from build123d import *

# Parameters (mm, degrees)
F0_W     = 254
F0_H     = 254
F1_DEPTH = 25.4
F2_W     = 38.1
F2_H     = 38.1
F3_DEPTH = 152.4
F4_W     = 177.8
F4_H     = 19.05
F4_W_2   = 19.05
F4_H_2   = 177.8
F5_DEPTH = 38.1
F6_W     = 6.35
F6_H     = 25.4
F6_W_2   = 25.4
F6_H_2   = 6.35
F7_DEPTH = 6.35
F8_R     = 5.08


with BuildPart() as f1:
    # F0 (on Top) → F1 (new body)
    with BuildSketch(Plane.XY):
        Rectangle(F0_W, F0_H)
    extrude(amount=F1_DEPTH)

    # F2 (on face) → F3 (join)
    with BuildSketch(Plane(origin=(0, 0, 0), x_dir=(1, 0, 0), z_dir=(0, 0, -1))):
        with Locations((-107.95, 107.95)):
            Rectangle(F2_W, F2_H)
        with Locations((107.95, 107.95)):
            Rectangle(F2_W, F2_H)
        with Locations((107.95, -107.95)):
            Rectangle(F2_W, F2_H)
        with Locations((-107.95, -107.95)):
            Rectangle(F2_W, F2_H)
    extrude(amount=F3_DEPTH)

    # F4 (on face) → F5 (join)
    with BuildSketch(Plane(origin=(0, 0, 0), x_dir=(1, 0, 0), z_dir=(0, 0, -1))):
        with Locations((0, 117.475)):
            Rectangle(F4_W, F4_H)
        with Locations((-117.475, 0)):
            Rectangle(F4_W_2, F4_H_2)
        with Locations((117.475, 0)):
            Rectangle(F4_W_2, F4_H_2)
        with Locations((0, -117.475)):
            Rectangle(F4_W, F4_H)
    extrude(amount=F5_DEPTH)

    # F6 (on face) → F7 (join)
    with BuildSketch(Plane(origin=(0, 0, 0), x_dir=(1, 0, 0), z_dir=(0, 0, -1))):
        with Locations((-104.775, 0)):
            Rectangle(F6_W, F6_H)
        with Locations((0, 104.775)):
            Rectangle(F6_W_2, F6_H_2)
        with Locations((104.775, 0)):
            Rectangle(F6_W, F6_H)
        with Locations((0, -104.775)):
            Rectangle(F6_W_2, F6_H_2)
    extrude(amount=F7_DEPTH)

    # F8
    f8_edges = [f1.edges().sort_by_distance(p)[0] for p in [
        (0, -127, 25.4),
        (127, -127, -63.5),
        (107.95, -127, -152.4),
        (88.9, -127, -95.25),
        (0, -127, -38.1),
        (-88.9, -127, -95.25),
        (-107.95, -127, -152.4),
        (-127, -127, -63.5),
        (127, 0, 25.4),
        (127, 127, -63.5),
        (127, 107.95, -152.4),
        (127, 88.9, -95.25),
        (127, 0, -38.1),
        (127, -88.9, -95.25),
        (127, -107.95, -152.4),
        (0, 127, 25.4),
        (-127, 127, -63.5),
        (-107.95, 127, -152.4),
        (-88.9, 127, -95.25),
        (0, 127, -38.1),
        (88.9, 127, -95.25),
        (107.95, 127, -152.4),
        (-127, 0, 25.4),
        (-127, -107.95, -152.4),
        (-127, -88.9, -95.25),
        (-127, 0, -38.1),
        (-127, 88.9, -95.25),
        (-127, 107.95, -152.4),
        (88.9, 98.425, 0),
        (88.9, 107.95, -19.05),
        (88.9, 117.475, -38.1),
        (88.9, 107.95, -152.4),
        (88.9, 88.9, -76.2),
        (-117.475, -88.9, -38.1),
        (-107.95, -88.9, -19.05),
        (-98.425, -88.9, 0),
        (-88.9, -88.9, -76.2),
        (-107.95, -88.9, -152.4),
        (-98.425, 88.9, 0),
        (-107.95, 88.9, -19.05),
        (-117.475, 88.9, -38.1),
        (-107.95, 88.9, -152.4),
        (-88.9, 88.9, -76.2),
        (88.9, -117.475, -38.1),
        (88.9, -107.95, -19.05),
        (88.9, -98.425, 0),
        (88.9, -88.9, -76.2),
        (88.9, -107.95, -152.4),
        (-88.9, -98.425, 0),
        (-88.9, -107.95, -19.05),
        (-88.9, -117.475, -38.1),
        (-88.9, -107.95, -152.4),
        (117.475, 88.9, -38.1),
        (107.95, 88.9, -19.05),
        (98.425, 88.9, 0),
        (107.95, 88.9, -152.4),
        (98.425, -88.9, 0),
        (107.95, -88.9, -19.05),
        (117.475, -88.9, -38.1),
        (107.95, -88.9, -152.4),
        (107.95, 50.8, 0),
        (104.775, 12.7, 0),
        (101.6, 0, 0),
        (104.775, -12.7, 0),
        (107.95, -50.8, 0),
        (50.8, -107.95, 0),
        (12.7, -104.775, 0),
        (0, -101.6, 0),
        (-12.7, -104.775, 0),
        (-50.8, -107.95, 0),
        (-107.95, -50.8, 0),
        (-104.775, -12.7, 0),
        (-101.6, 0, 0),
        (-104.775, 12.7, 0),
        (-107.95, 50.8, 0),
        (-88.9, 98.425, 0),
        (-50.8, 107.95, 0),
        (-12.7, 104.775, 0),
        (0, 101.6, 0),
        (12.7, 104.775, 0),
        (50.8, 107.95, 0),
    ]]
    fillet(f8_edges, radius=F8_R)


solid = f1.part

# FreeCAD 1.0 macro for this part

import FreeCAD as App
import Part
import Sketcher
Q = App.Units.Quantity


def edges_at(feature, points):
    """Names of the edges that pass closest to the given points."""
    edges = feature.Shape.Edges
    near = lambda p: min(range(len(edges)), key=lambda i: edges[i].distToShape(Part.Vertex(*p))[0])
    return sorted({f"Edge{near(p) + 1}" for p in points})


def add_polygon(sketch, points):
    """Adds a closed chain of lines whose ends are joined by coincident constraints."""
    first, n = sketch.GeometryCount, len(points)
    for a, b in zip(points, points[1:] + points[:1]):
        sketch.addGeometry(Part.LineSegment(App.Vector(*a, 0), App.Vector(*b, 0)), False)
    for i in range(n):
        sketch.addConstraint(Sketcher.Constraint("Coincident", first + i, 2, first + (i + 1) % n, 1))

doc = App.newDocument("Part")
body = doc.addObject("PartDesign::Body", "Body")

# Sketch on XY plane
sketch1 = body.newObject("Sketcher::SketchObject", "Sketch")
sketch1.AttachmentSupport = (doc.getObject("XY_Plane"), [""])
sketch1.MapMode = "FlatFace"
add_polygon(sketch1, [(-127, 127), (-127, -127), (127, -127), (127, 127)])  # lines 0-3
sketch1.addConstraint(Sketcher.Constraint("Vertical", 0))
sketch1.addConstraint(Sketcher.Constraint("Horizontal", 1))
sketch1.addConstraint(Sketcher.Constraint("Vertical", 2))
sketch1.addConstraint(Sketcher.Constraint("Horizontal", 3))
sketch1.addConstraint(Sketcher.Constraint("Symmetric", 0, 2, 2, 2, -1, 1))
sketch1.addConstraint(Sketcher.Constraint("Equal", 3, 0))
sketch1.addConstraint(Sketcher.Constraint("DistanceX", 1, 1, 1, 2, Q("10 in")))
pad1 = body.newObject("PartDesign::Pad", "Pad")
pad1.Profile = sketch1
pad1.Length = Q("1 in")

# Sketch on XY plane
sketch2 = body.newObject("Sketcher::SketchObject", "Sketch001")
sketch2.AttachmentSupport = (doc.getObject("XY_Plane"), [""])
sketch2.MapMode = "FlatFace"
add_polygon(sketch2, [(-127, -127), (-127, -88.9), (-88.9, -88.9), (-88.9, -127)])  # lines 0-3
add_polygon(sketch2, [(88.9, -127), (88.9, -88.9), (127, -88.9), (127, -127)])  # lines 4-7
add_polygon(sketch2, [(88.9, 88.9), (88.9, 127), (127, 127), (127, 88.9)])  # lines 8-11
add_polygon(sketch2, [(-127, 88.9), (-127, 127), (-88.9, 127), (-88.9, 88.9)])  # lines 12-15
sketch2.addConstraint(Sketcher.Constraint("Vertical", 0))
sketch2.addConstraint(Sketcher.Constraint("Horizontal", 1))
sketch2.addConstraint(Sketcher.Constraint("Vertical", 2))
sketch2.addConstraint(Sketcher.Constraint("Horizontal", 3))
sketch2.addConstraint(Sketcher.Constraint("Vertical", 4))
sketch2.addConstraint(Sketcher.Constraint("Horizontal", 5))
sketch2.addConstraint(Sketcher.Constraint("Vertical", 6))
sketch2.addConstraint(Sketcher.Constraint("Horizontal", 7))
sketch2.addConstraint(Sketcher.Constraint("Vertical", 8))
sketch2.addConstraint(Sketcher.Constraint("Horizontal", 9))
sketch2.addConstraint(Sketcher.Constraint("Vertical", 10))
sketch2.addConstraint(Sketcher.Constraint("Horizontal", 11))
sketch2.addConstraint(Sketcher.Constraint("Vertical", 12))
sketch2.addConstraint(Sketcher.Constraint("Horizontal", 13))
sketch2.addConstraint(Sketcher.Constraint("Vertical", 14))
sketch2.addConstraint(Sketcher.Constraint("Horizontal", 15))
sketch2.addConstraint(Sketcher.Constraint("Symmetric", 2, 2, 8, 2, -1, 1))
sketch2.addConstraint(Sketcher.Constraint("Symmetric", 0, 2, 10, 2, -1, 1))
sketch2.addConstraint(Sketcher.Constraint("Symmetric", 6, 2, 12, 2, -1, 1))
sketch2.addConstraint(Sketcher.Constraint("Symmetric", 4, 2, 14, 2, -1, 1))
sketch2.addConstraint(Sketcher.Constraint("Symmetric", 1, 2, 4, 2, -2))
sketch2.addConstraint(Sketcher.Constraint("Symmetric", 3, 2, 6, 2, -2))
sketch2.addConstraint(Sketcher.Constraint("Equal", 15, 0))
sketch2.addConstraint(Sketcher.Constraint("DistanceX", 1, 1, 1, 2, Q("1.5 in")))
sketch2.addConstraint(Sketcher.Constraint("DistanceX", 0, 2, -1, 1, Q("5 in")))
sketch2.addConstraint(Sketcher.Constraint("DistanceY", 2, 2, -1, 1, Q("5 in")))
pad2 = body.newObject("PartDesign::Pad", "Pad001")
pad2.Profile = sketch2
pad2.Length = Q("6 in")
pad2.Reversed = True

# Sketch on XY plane
sketch3 = body.newObject("Sketcher::SketchObject", "Sketch002")
sketch3.AttachmentSupport = (doc.getObject("XY_Plane"), [""])
sketch3.MapMode = "FlatFace"
add_polygon(sketch3, [(-88.9, -127), (-88.9, -107.95), (88.9, -107.95), (88.9, -127)])  # lines 0-3
add_polygon(sketch3, [(-127, -88.9), (-127, 88.9), (-107.95, 88.9), (-107.95, -88.9)])  # lines 4-7
add_polygon(sketch3, [(107.95, -88.9), (107.95, 88.9), (127, 88.9), (127, -88.9)])  # lines 8-11
add_polygon(sketch3, [(-88.9, 107.95), (-88.9, 127), (88.9, 127), (88.9, 107.95)])  # lines 12-15
sketch3.addConstraint(Sketcher.Constraint("Vertical", 0))
sketch3.addConstraint(Sketcher.Constraint("Horizontal", 1))
sketch3.addConstraint(Sketcher.Constraint("Vertical", 2))
sketch3.addConstraint(Sketcher.Constraint("Horizontal", 3))
sketch3.addConstraint(Sketcher.Constraint("Vertical", 4))
sketch3.addConstraint(Sketcher.Constraint("Horizontal", 5))
sketch3.addConstraint(Sketcher.Constraint("Vertical", 6))
sketch3.addConstraint(Sketcher.Constraint("Horizontal", 7))
sketch3.addConstraint(Sketcher.Constraint("Vertical", 8))
sketch3.addConstraint(Sketcher.Constraint("Horizontal", 9))
sketch3.addConstraint(Sketcher.Constraint("Vertical", 10))
sketch3.addConstraint(Sketcher.Constraint("Horizontal", 11))
sketch3.addConstraint(Sketcher.Constraint("Vertical", 12))
sketch3.addConstraint(Sketcher.Constraint("Horizontal", 13))
sketch3.addConstraint(Sketcher.Constraint("Vertical", 14))
sketch3.addConstraint(Sketcher.Constraint("Horizontal", 15))
sketch3.addConstraint(Sketcher.Constraint("Symmetric", 6, 2, 8, 2, -1, 1))
sketch3.addConstraint(Sketcher.Constraint("Symmetric", 4, 2, 10, 2, -1, 1))
sketch3.addConstraint(Sketcher.Constraint("Symmetric", 2, 2, 12, 2, -1, 1))
sketch3.addConstraint(Sketcher.Constraint("Symmetric", 0, 2, 14, 2, -1, 1))
sketch3.addConstraint(Sketcher.Constraint("Horizontal", 5, 2, 8, 2))
sketch3.addConstraint(Sketcher.Constraint("Vertical", 3, 2, 12, 2))
sketch3.addConstraint(Sketcher.Constraint("Equal", 11, 0))
sketch3.addConstraint(Sketcher.Constraint("Equal", 15, 4))
sketch3.addConstraint(Sketcher.Constraint("DistanceX", 1, 1, 1, 2, Q("7 in")))
sketch3.addConstraint(Sketcher.Constraint("DistanceY", 2, 2, -1, 1, Q("5 in")))
sketch3.addConstraint(Sketcher.Constraint("DistanceX", 4, 2, -1, 1, Q("5 in")))
sketch3.addConstraint(Sketcher.Constraint("DistanceX", 5, 1, 5, 2, Q("0.75 in")))
pad3 = body.newObject("PartDesign::Pad", "Pad002")
pad3.Profile = sketch3
pad3.Length = Q("1.5 in")
pad3.Reversed = True

# Sketch on XY plane
sketch4 = body.newObject("Sketcher::SketchObject", "Sketch003")
sketch4.AttachmentSupport = (doc.getObject("XY_Plane"), [""])
sketch4.MapMode = "FlatFace"
add_polygon(sketch4, [(-107.95, -12.7), (-107.95, 12.7), (-101.6, 12.7), (-101.6, -12.7)])  # lines 0-3
add_polygon(sketch4, [(-12.7, -107.95), (-12.7, -101.6), (12.7, -101.6), (12.7, -107.95)])  # lines 4-7
add_polygon(sketch4, [(101.6, -12.7), (101.6, 12.7), (107.95, 12.7), (107.95, -12.7)])  # lines 8-11
add_polygon(sketch4, [(-12.7, 101.6), (-12.7, 107.95), (12.7, 107.95), (12.7, 101.6)])  # lines 12-15
sketch4.addConstraint(Sketcher.Constraint("Vertical", 0))
sketch4.addConstraint(Sketcher.Constraint("Horizontal", 1))
sketch4.addConstraint(Sketcher.Constraint("Vertical", 2))
sketch4.addConstraint(Sketcher.Constraint("Horizontal", 3))
sketch4.addConstraint(Sketcher.Constraint("Vertical", 4))
sketch4.addConstraint(Sketcher.Constraint("Horizontal", 5))
sketch4.addConstraint(Sketcher.Constraint("Vertical", 6))
sketch4.addConstraint(Sketcher.Constraint("Horizontal", 7))
sketch4.addConstraint(Sketcher.Constraint("Vertical", 8))
sketch4.addConstraint(Sketcher.Constraint("Horizontal", 9))
sketch4.addConstraint(Sketcher.Constraint("Vertical", 10))
sketch4.addConstraint(Sketcher.Constraint("Horizontal", 11))
sketch4.addConstraint(Sketcher.Constraint("Vertical", 12))
sketch4.addConstraint(Sketcher.Constraint("Horizontal", 13))
sketch4.addConstraint(Sketcher.Constraint("Vertical", 14))
sketch4.addConstraint(Sketcher.Constraint("Horizontal", 15))
sketch4.addConstraint(Sketcher.Constraint("Symmetric", 2, 2, 8, 2, -1, 1))
sketch4.addConstraint(Sketcher.Constraint("Symmetric", 0, 2, 10, 2, -1, 1))
sketch4.addConstraint(Sketcher.Constraint("Symmetric", 6, 2, 12, 2, -1, 1))
sketch4.addConstraint(Sketcher.Constraint("Symmetric", 4, 2, 14, 2, -1, 1))
sketch4.addConstraint(Sketcher.Constraint("Horizontal", 1, 2, 8, 2))
sketch4.addConstraint(Sketcher.Constraint("Vertical", 7, 2, 12, 2))
sketch4.addConstraint(Sketcher.Constraint("Equal", 15, 0))
sketch4.addConstraint(Sketcher.Constraint("Equal", 11, 4))
sketch4.addConstraint(Sketcher.Constraint("DistanceX", 5, 1, 5, 2, Q("1 in")))
sketch4.addConstraint(Sketcher.Constraint("DistanceX", 1, 2, -1, 1, Q("4 in")))
sketch4.addConstraint(Sketcher.Constraint("DistanceY", 4, 2, -1, 1, Q("4 in")))
sketch4.addConstraint(Sketcher.Constraint("DistanceX", 1, 1, 1, 2, Q("0.25 in")))
pad4 = body.newObject("PartDesign::Pad", "Pad003")
pad4.Profile = sketch4
pad4.Length = Q("0.25 in")
pad4.Reversed = True
doc.recompute()

fillet = body.newObject("PartDesign::Fillet", "Fillet")
fillet.Base = (pad4, edges_at(pad4, [
    (0, -127, 25.4),
    (127, -127, -63.5),
    (107.95, -127, -152.4),
    (88.9, -127, -95.25),
    (0, -127, -38.1),
    (-88.9, -127, -95.25),
    (-107.95, -127, -152.4),
    (-127, -127, -63.5),
    (127, 0, 25.4),
    (127, 127, -63.5),
    (127, 107.95, -152.4),
    (127, 88.9, -95.25),
    (127, 0, -38.1),
    (127, -88.9, -95.25),
    (127, -107.95, -152.4),
    (0, 127, 25.4),
    (-127, 127, -63.5),
    (-107.95, 127, -152.4),
    (-88.9, 127, -95.25),
    (0, 127, -38.1),
    (88.9, 127, -95.25),
    (107.95, 127, -152.4),
    (-127, 0, 25.4),
    (-127, -107.95, -152.4),
    (-127, -88.9, -95.25),
    (-127, 0, -38.1),
    (-127, 88.9, -95.25),
    (-127, 107.95, -152.4),
    (88.9, 98.425, 0),
    (88.9, 107.95, -19.05),
    (88.9, 117.475, -38.1),
    (88.9, 107.95, -152.4),
    (88.9, 88.9, -76.2),
    (-117.475, -88.9, -38.1),
    (-107.95, -88.9, -19.05),
    (-98.425, -88.9, 0),
    (-88.9, -88.9, -76.2),
    (-107.95, -88.9, -152.4),
    (-98.425, 88.9, 0),
    (-107.95, 88.9, -19.05),
    (-117.475, 88.9, -38.1),
    (-107.95, 88.9, -152.4),
    (-88.9, 88.9, -76.2),
    (88.9, -117.475, -38.1),
    (88.9, -107.95, -19.05),
    (88.9, -98.425, 0),
    (88.9, -88.9, -76.2),
    (88.9, -107.95, -152.4),
    (-88.9, -98.425, 0),
    (-88.9, -107.95, -19.05),
    (-88.9, -117.475, -38.1),
    (-88.9, -107.95, -152.4),
    (117.475, 88.9, -38.1),
    (107.95, 88.9, -19.05),
    (98.425, 88.9, 0),
    (107.95, 88.9, -152.4),
    (98.425, -88.9, 0),
    (107.95, -88.9, -19.05),
    (117.475, -88.9, -38.1),
    (107.95, -88.9, -152.4),
    (107.95, 50.8, 0),
    (104.775, 12.7, 0),
    (101.6, 0, 0),
    (104.775, -12.7, 0),
    (107.95, -50.8, 0),
    (50.8, -107.95, 0),
    (12.7, -104.775, 0),
    (0, -101.6, 0),
    (-12.7, -104.775, 0),
    (-50.8, -107.95, 0),
    (-107.95, -50.8, 0),
    (-104.775, -12.7, 0),
    (-101.6, 0, 0),
    (-104.775, 12.7, 0),
    (-107.95, 50.8, 0),
    (-88.9, 98.425, 0),
    (-50.8, 107.95, 0),
    (-12.7, 104.775, 0),
    (0, 101.6, 0),
    (12.7, 104.775, 0),
    (50.8, 107.95, 0),
]))
fillet.Radius = Q("0.2 in")

doc.recompute()
